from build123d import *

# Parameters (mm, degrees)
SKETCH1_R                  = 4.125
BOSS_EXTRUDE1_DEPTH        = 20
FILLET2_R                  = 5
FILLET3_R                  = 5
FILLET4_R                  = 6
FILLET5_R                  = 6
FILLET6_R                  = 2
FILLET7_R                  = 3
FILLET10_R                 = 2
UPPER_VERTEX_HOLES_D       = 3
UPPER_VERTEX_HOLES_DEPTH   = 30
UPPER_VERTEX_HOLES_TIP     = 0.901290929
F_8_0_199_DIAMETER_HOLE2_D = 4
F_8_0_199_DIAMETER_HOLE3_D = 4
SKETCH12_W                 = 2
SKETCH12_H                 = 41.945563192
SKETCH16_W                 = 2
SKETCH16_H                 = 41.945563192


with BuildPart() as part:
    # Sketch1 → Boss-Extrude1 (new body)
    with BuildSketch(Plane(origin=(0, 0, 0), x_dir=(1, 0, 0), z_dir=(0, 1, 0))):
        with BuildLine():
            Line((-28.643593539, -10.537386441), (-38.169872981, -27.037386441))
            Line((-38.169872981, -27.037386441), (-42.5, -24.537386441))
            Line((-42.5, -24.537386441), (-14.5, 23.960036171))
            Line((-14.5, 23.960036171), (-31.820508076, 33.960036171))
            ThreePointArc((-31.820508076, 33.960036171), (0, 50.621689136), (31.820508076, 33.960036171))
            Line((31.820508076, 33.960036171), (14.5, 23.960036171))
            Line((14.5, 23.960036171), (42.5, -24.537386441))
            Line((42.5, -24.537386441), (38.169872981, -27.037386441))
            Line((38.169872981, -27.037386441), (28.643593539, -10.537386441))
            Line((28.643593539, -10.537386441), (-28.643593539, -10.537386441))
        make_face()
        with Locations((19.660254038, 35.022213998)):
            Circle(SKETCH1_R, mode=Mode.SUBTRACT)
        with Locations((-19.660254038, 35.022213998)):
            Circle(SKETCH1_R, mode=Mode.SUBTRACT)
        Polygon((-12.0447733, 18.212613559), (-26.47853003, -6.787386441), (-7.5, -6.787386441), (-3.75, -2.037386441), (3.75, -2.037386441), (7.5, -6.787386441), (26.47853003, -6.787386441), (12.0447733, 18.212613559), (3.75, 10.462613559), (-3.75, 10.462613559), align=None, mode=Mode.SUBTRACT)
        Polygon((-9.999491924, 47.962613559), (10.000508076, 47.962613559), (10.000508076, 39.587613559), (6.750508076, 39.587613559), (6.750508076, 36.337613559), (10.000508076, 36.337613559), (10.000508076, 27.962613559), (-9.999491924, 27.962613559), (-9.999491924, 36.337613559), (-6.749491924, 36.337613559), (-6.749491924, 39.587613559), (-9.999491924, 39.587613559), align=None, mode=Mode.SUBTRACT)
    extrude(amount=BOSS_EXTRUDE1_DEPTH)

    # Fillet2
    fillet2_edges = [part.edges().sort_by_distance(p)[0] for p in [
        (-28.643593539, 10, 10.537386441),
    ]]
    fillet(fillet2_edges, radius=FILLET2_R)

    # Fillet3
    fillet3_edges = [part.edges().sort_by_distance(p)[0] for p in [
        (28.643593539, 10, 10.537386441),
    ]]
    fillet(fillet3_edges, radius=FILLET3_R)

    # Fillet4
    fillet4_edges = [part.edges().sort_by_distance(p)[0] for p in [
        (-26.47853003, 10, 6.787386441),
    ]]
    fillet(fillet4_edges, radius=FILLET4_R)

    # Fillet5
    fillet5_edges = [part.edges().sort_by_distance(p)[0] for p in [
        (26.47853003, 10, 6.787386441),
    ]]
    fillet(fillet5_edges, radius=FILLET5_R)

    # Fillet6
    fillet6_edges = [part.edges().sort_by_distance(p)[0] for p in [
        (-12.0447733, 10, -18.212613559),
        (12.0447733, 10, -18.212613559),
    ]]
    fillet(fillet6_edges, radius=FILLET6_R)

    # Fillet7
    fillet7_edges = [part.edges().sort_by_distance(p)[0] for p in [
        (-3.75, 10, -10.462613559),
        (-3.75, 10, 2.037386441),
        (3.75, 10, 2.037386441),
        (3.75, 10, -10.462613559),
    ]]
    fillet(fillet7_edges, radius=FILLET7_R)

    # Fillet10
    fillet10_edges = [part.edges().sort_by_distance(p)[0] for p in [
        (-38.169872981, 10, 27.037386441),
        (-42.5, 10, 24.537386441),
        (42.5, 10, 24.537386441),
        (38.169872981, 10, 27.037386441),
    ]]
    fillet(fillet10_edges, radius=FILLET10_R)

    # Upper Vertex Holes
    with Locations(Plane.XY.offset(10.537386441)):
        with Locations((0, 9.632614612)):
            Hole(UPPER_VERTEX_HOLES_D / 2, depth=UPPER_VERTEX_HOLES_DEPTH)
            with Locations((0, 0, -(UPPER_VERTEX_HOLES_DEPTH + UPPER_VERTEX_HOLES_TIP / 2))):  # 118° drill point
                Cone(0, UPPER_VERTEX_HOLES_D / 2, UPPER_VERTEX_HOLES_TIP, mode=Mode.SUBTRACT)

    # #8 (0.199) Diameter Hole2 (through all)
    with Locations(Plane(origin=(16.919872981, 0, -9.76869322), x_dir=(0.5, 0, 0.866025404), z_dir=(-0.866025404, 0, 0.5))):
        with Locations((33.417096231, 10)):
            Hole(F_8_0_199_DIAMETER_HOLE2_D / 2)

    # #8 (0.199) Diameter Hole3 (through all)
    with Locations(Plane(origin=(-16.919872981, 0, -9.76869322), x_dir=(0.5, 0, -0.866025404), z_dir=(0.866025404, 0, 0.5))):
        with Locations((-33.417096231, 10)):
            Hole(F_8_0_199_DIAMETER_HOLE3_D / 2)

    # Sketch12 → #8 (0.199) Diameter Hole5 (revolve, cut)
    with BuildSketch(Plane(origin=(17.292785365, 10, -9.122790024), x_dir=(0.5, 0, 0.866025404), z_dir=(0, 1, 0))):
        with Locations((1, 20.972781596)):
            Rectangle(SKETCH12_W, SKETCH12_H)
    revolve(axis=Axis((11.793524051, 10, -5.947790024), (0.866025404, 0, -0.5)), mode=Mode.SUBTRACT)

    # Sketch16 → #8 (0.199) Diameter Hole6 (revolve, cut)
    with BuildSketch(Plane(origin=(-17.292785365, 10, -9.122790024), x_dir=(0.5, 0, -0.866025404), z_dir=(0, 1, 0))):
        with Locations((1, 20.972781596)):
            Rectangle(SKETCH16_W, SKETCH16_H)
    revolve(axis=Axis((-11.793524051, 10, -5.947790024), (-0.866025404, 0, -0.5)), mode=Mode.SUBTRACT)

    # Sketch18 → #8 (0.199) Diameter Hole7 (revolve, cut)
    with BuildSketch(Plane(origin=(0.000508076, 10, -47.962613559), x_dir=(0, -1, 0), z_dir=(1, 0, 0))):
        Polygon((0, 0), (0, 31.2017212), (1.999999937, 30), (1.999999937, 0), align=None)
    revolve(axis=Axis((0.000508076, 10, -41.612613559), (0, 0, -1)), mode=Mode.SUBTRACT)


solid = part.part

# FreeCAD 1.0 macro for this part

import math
import FreeCAD as App
import Part
import Sketcher

V = App.Vector
Q = App.Units.Quantity


def edges_at(feature, points):
    """Names of the edges that pass closest to the given points."""
    edges = feature.Shape.Edges
    near = lambda p: min(range(len(edges)), key=lambda i: edges[i].distToShape(Part.Vertex(*p))[0])
    return sorted({f"Edge{near(p) + 1}" for p in points})


def add_polygon(sketch, points):
    """Adds a closed chain of lines whose ends are joined by coincident constraints."""
    first, n = sketch.GeometryCount, len(points)
    for a, b in zip(points, points[1:] + points[:1]):
        sketch.addGeometry(Part.LineSegment(App.Vector(*a, 0), App.Vector(*b, 0)), False)
    for i in range(n):
        sketch.addConstraint(Sketcher.Constraint("Coincident", first + i, 2, first + (i + 1) % n, 1))

doc = App.newDocument("Part")
params = doc.addObject("Spreadsheet::Sheet", "Params")
for row, (alias, value) in enumerate([
    ("sketch1_diameter", "8.25 mm"),
    ("sketch1_width", "20 mm"),
    ("sketch1_length", "5 mm"),
    ("sketch1_length2", "56 mm"),
    ("sketch1_length3", "20 mm"),
    ("pad1_length", "20 mm"),
    ("fillet_radius", "5 mm"),
    ("fillet2_radius", "5 mm"),
    ("fillet3_radius", "6 mm"),
    ("fillet4_radius", "6 mm"),
    ("fillet5_radius", "2 mm"),
    ("fillet6_radius", "3 mm"),
    ("fillet7_radius", "2 mm"),
    ("sketch2_diameter", "3 mm"),
    ("hole_diameter", "3 mm"),
    ("hole_depth", "30 mm"),
    ("sketch3_diameter", "4 mm"),
    ("hole2_diameter", "4 mm"),
    ("sketch4_diameter", "4 mm"),
    ("hole3_diameter", "4 mm"),
    ("sketch5_length", "2 mm"),
    ("groove_angle", "360 deg"),
    ("sketch6_length", "2 mm"),
    ("groove2_angle", "360 deg"),
    ("sketch7_width", "2 mm"),
    ("sketch7_height", "30 mm"),
    ("groove3_angle", "360 deg"),
], start=1):
    params.set(f"A{row}", alias)
    params.set(f"B{row}", "=" + value)
    params.setAlias(f"B{row}", alias)

body = doc.addObject("PartDesign::Body", "Body")

# Sketch on XZ plane
sketch1 = body.newObject("Sketcher::SketchObject", "Sketch")
sketch1.AttachmentSupport = (doc.getObject("XZ_Plane"), [""])
sketch1.MapMode = "FlatFace"
sketch1.addGeometry(Part.LineSegment(V(-38.2, 27, 0), V(-28.6, 10.5, 0)), False)  # 0
sketch1.addGeometry(Part.LineSegment(V(-28.6, 10.5, 0), V(28.6, 10.5, 0)), False)  # 1
sketch1.addGeometry(Part.LineSegment(V(28.6, 10.5, 0), V(38.2, 27, 0)), False)  # 2
sketch1.addGeometry(Part.LineSegment(V(38.2, 27, 0), V(42.5, 24.5, 0)), False)  # 3
sketch1.addGeometry(Part.LineSegment(V(42.5, 24.5, 0), V(14.5, -24, 0)), False)  # 4
sketch1.addGeometry(Part.LineSegment(V(14.5, -24, 0), V(31.8, -34, 0)), False)  # 5
sketch1.addGeometry(Part.ArcOfCircle(Part.Circle(V(0, -11.9, 0), V(0, 0, 1), 38.7), math.radians(-145), math.radians(-35)), False)  # 6
sketch1.addGeometry(Part.LineSegment(V(-31.8, -34, 0), V(-14.5, -24, 0)), False)  # 7
sketch1.addGeometry(Part.LineSegment(V(-14.5, -24, 0), V(-42.5, 24.5, 0)), False)  # 8
sketch1.addGeometry(Part.LineSegment(V(-42.5, 24.5, 0), V(-38.2, 27, 0)), False)  # 9
add_polygon(sketch1, [(-12, -18.2), (-3.8, -10.5), (3.8, -10.5), (12, -18.2), (26.5, 6.8), (7.5, 6.8), (3.8, 2), (-3.8, 2), (-7.5, 6.8), (-26.5, 6.8)])  # lines 10-19
sketch1.addGeometry(Part.Circle(V(19.7, -35, 0), V(0, 0, 1), 4.1), False)  # 20
add_polygon(sketch1, [(-10, -48), (10, -48), (10, -39.6), (6.8, -39.6), (6.8, -36.3), (10, -36.3), (10, -28), (-10, -28), (-10, -36.3), (-6.7, -36.3), (-6.7, -39.6), (-10, -39.6)])  # lines 21-32
sketch1.addGeometry(Part.Circle(V(-19.7, -35, 0), V(0, 0, 1), 4.1), False)  # 33
sketch1.addConstraint(Sketcher.Constraint("Coincident", 0, 2, 1, 1))
sketch1.addConstraint(Sketcher.Constraint("Coincident", 1, 2, 2, 1))
sketch1.addConstraint(Sketcher.Constraint("Coincident", 2, 2, 3, 1))
sketch1.addConstraint(Sketcher.Constraint("Coincident", 3, 2, 4, 1))
sketch1.addConstraint(Sketcher.Constraint("Coincident", 4, 2, 5, 1))
sketch1.addConstraint(Sketcher.Constraint("Coincident", 5, 2, 6, 2))
sketch1.addConstraint(Sketcher.Constraint("Coincident", 6, 1, 7, 1))
sketch1.addConstraint(Sketcher.Constraint("Coincident", 7, 2, 8, 1))
sketch1.addConstraint(Sketcher.Constraint("Coincident", 8, 2, 9, 1))
sketch1.addConstraint(Sketcher.Constraint("Coincident", 9, 2, 0, 1))
sketch1.addConstraint(Sketcher.Constraint("Horizontal", 1))
sketch1.addConstraint(Sketcher.Constraint("Horizontal", 11))
sketch1.addConstraint(Sketcher.Constraint("Horizontal", 14))
sketch1.addConstraint(Sketcher.Constraint("Horizontal", 16))
sketch1.addConstraint(Sketcher.Constraint("Horizontal", 18))
sketch1.addConstraint(Sketcher.Constraint("Horizontal", 21))
sketch1.addConstraint(Sketcher.Constraint("Vertical", 22))
sketch1.addConstraint(Sketcher.Constraint("Horizontal", 23))
sketch1.addConstraint(Sketcher.Constraint("Vertical", 24))
sketch1.addConstraint(Sketcher.Constraint("Horizontal", 25))
sketch1.addConstraint(Sketcher.Constraint("Vertical", 26))
sketch1.addConstraint(Sketcher.Constraint("Horizontal", 27))
sketch1.addConstraint(Sketcher.Constraint("Vertical", 28))
sketch1.addConstraint(Sketcher.Constraint("Horizontal", 29))
sketch1.addConstraint(Sketcher.Constraint("Vertical", 30))
sketch1.addConstraint(Sketcher.Constraint("Horizontal", 31))
sketch1.addConstraint(Sketcher.Constraint("Vertical", 32))
sketch1.addConstraint(Sketcher.Constraint("Equal", 20, 33))
sketch1.addConstraint(Sketcher.Constraint("Symmetric", 20, 3, 33, 3, -2))
sketch1.addConstraint(Sketcher.Constraint("Symmetric", 5, 2, 6, 1, -2))
sketch1.addConstraint(Sketcher.Constraint("Symmetric", 4, 2, 7, 2, -2))
sketch1.addConstraint(Sketcher.Constraint("Symmetric", 3, 2, 8, 2, -2))
sketch1.addConstraint(Sketcher.Constraint("Symmetric", 2, 2, 9, 2, -2))
sketch1.addConstraint(Sketcher.Constraint("Symmetric", 14, 2, 17, 2, -2))
sketch1.addConstraint(Sketcher.Constraint("Symmetric", 12, 2, 19, 2, -2))
sketch1.addConstraint(Sketcher.Constraint("Perpendicular", 2, 3))
sketch1.addConstraint(Sketcher.Constraint("Perpendicular", 3, 4))
sketch1.addConstraint(Sketcher.Constraint("Perpendicular", 4, 5))
sketch1.addConstraint(Sketcher.Constraint("Perpendicular", 0, 7))
sketch1.addConstraint(Sketcher.Constraint("Perpendicular", 5, 13))
sketch1.addConstraint(Sketcher.Constraint("Perpendicular", 9, 19))
sketch1.addConstraint(Sketcher.Constraint("Horizontal", 25, 2, 28, 2))
sketch1.addConstraint(Sketcher.Constraint("Horizontal", 23, 2, 30, 2))
sketch1.addConstraint(Sketcher.Constraint("Vertical", 11, 2, 15, 2))
sketch1.addConstraint(Sketcher.Constraint("Vertical", 10, 2, 16, 2))
sketch1.addConstraint(Sketcher.Constraint("Vertical", 22, 2, 25, 2))
sketch1.addConstraint(Sketcher.Constraint("Vertical", 28, 2, 31, 2))
sketch1.addConstraint(Sketcher.Constraint("Equal", 25, 29))
sketch1.addConstraint(Sketcher.Constraint("Equal", 31, 24))
sketch1.addConstraint(Sketcher.Constraint("Equal", 22, 26))
sketch1.addConstraint(Sketcher.Constraint("Equal", 10, 12))
sketch1.addConstraint(Sketcher.Constraint("Diameter", 20, 8.25))
sketch1.addConstraint(Sketcher.Constraint("DistanceX", 21, 1, 21, 2, 20.0))
sketch1.addConstraint(Sketcher.Constraint("Angle", 0, Q("-60 deg")))
sketch1.addConstraint(Sketcher.Constraint("Distance", 3, 5.0))
sketch1.addConstraint(Sketcher.Constraint("Distance", 4, 56.0))
sketch1.addConstraint(Sketcher.Constraint("Distance", 5, 20.0))
sketch1.addConstraint(Sketcher.Constraint("DistanceX", 11, 1, 11, 2, 7.5))
sketch1.addConstraint(Sketcher.Constraint("DistanceY", 1, 2, 3, 2, 14.0))
sketch1.addConstraint(Sketcher.Constraint("DistanceX", 7, 2, 4, 2, 29.0))
sketch1.addConstraint(Sketcher.Constraint("DistanceY", 10, 2, 0, 2, 21.0))
sketch1.addConstraint(Sketcher.Constraint("DistanceY", 12, 2, 13, 2, 25.0))
sketch1.addConstraint(Sketcher.Constraint("DistanceX", 17, 2, 14, 2, 15.0))
sketch1.addConstraint(Sketcher.Constraint("DistanceX", 23, 2, 23, 1, 3.25))
sketch1.addConstraint(Sketcher.Constraint("DistanceY", 11, 2, 15, 2, 12.5))
sketch1.addConstraint(Sketcher.Constraint("DistanceY", 27, 2, 10, 2, 17.5))
sketch1.addConstraint(Sketcher.Constraint("DistanceY", 22, 1, 22, 2, 8.375))
sketch1.addConstraint(Sketcher.Constraint("Radius", 6, 38.716309))
sketch1.addConstraint(Sketcher.Constraint("DistanceY", 12, 2, 11, 2, 7.75))
sketch1.addConstraint(Sketcher.Constraint("DistanceX", 21, 2, 5, 2, 21.82))
sketch1.addConstraint(Sketcher.Constraint("DistanceX", 14, 2, 14, 1, 18.97853))
sketch1.addConstraint(Sketcher.Constraint("DistanceY", 33, 3, 0, 2, 45.5596))
sketch1.addConstraint(Sketcher.Constraint("DistanceY", 6, 3, -1, 1, 11.90538))
sketch1.addConstraint(Sketcher.Constraint("DistanceX", 33, 3, 20, 3, 39.320508))
sketch1.setExpression("Constraints[73]", "Params.sketch1_diameter")
sketch1.setExpression("Constraints[74]", "Params.sketch1_width")
sketch1.setExpression("Constraints[76]", "Params.sketch1_length")
sketch1.setExpression("Constraints[77]", "Params.sketch1_length2")
sketch1.setExpression("Constraints[78]", "Params.sketch1_length3")
pad1 = body.newObject("PartDesign::Pad", "Pad")
pad1.Profile = sketch1
pad1.setExpression("Length", "Params.pad1_length")
pad1.Reversed = True
doc.recompute()

fillet = body.newObject("PartDesign::Fillet", "Fillet")
fillet.Base = (pad1, edges_at(pad1, [(-28.644, 10, 10.537)]))
fillet.setExpression("Radius", "Params.fillet_radius")
doc.recompute()

fillet2 = body.newObject("PartDesign::Fillet", "Fillet001")
fillet2.Base = (fillet, edges_at(fillet, [(28.644, 10, 10.537)]))
fillet2.setExpression("Radius", "Params.fillet2_radius")
doc.recompute()

fillet3 = body.newObject("PartDesign::Fillet", "Fillet002")
fillet3.Base = (fillet2, edges_at(fillet2, [(-26.479, 10, 6.787)]))
fillet3.setExpression("Radius", "Params.fillet3_radius")
doc.recompute()

fillet4 = body.newObject("PartDesign::Fillet", "Fillet003")
fillet4.Base = (fillet3, edges_at(fillet3, [(26.479, 10, 6.787)]))
fillet4.setExpression("Radius", "Params.fillet4_radius")
doc.recompute()

fillet5 = body.newObject("PartDesign::Fillet", "Fillet004")
fillet5.Base = (fillet4, edges_at(fillet4, [(-12.045, 10, -18.213), (12.045, 10, -18.213)]))
fillet5.setExpression("Radius", "Params.fillet5_radius")
doc.recompute()

fillet6 = body.newObject("PartDesign::Fillet", "Fillet005")
fillet6.Base = (fillet5, edges_at(fillet5, [
    (-3.75, 10, -10.463),
    (-3.75, 10, 2.037),
    (3.75, 10, 2.037),
    (3.75, 10, -10.463),
]))
fillet6.setExpression("Radius", "Params.fillet6_radius")
doc.recompute()

fillet7 = body.newObject("PartDesign::Fillet", "Fillet006")
fillet7.Base = (fillet6, edges_at(fillet6, [
    (-38.17, 10, 27.037),
    (-42.5, 10, 24.537),
    (42.5, 10, 24.537),
    (38.17, 10, 27.037),
]))
fillet7.setExpression("Radius", "Params.fillet7_radius")

# Sketch on XY plane
sketch2 = body.newObject("Sketcher::SketchObject", "Sketch001")
sketch2.AttachmentSupport = (doc.getObject("XY_Plane"), [""])
sketch2.MapMode = "FlatFace"
sketch2.AttachmentOffset = App.Placement(V(0, 0, 10.537386), App.Rotation())
sketch2.addGeometry(Part.Circle(V(0, 9.6, 0), V(0, 0, 1), 1.5), False)
sketch2.addConstraint(Sketcher.Constraint("PointOnObject", 0, 3, -2))
sketch2.addConstraint(Sketcher.Constraint("Diameter", 0, 3.0))
sketch2.addConstraint(Sketcher.Constraint("DistanceY", -1, 1, 0, 3, 9.632615))
sketch2.setExpression("Constraints[1]", "Params.sketch2_diameter")
doc.recompute()
hole = body.newObject("PartDesign::Hole", "Hole")
hole.Profile = sketch2
hole.ThreadType = "None"
hole.setExpression("Diameter", "Params.hole_diameter")
hole.DepthType = "Dimension"
hole.setExpression("Depth", "Params.hole_depth")
hole.DrillPoint = "Angled"
hole.DrillPointAngle = 118

# Sketch on an angled plane
sketch3 = body.newObject("Sketcher::SketchObject", "Sketch002")
sketch3.Placement = App.Placement(V(16.919873, 0, -9.768693), App.Rotation(V(0.5, 0, 0.866025404), V(0, 1, 0), V(-0.866025404, 0, 0.5), "ZXY"))
sketch3.addGeometry(Part.Circle(V(33.4, 10, 0), V(0, 0, 1), 2), False)
sketch3.addConstraint(Sketcher.Constraint("Diameter", 0, 4.0))
sketch3.addConstraint(Sketcher.Constraint("DistanceY", -1, 1, 0, 3, 10.0))
sketch3.addConstraint(Sketcher.Constraint("DistanceX", -1, 1, 0, 3, 33.417096))
sketch3.setExpression("Constraints[0]", "Params.sketch3_diameter")
doc.recompute()
hole2 = body.newObject("PartDesign::Hole", "Hole001")
hole2.Profile = sketch3
hole2.ThreadType = "None"
hole2.setExpression("Diameter", "Params.hole2_diameter")
hole2.DepthType = "ThroughAll"

# Sketch on an angled plane
sketch4 = body.newObject("Sketcher::SketchObject", "Sketch003")
sketch4.Placement = App.Placement(V(-16.919873, 0, -9.768693), App.Rotation(V(0.5, 0, -0.866025404), V(0, 1, 0), V(0.866025404, 0, 0.5), "ZXY"))
sketch4.addGeometry(Part.Circle(V(-33.4, 10, 0), V(0, 0, 1), 2), False)
sketch4.addConstraint(Sketcher.Constraint("Diameter", 0, 4.0))
sketch4.addConstraint(Sketcher.Constraint("DistanceY", -1, 1, 0, 3, 10.0))
sketch4.addConstraint(Sketcher.Constraint("DistanceX", 0, 3, -1, 1, 33.417096))
sketch4.setExpression("Constraints[0]", "Params.sketch4_diameter")
doc.recompute()
hole3 = body.newObject("PartDesign::Hole", "Hole002")
hole3.Profile = sketch4
hole3.ThreadType = "None"
hole3.setExpression("Diameter", "Params.hole3_diameter")
hole3.DepthType = "ThroughAll"

# Sketch on XZ plane
sketch5 = body.newObject("Sketcher::SketchObject", "Sketch004")
sketch5.AttachmentSupport = (doc.getObject("XZ_Plane"), [""])
sketch5.MapMode = "FlatFace"
sketch5.AttachmentOffset = App.Placement(V(0, 0, -10), App.Rotation())
add_polygon(sketch5, [(53.6, -30.1), (17.3, -9.1), (18.3, -7.4), (54.6, -28.4)])  # lines 0-3
sketch5.addGeometry(Part.LineSegment(V(17.3, -9.1, 0), V(53.6, -30.1, 0)), True)  # axis
sketch5.addConstraint(Sketcher.Constraint("Coincident", 4, 1, 0, 2))
sketch5.addConstraint(Sketcher.Constraint("Coincident", 4, 2, 3, 2))
sketch5.addConstraint(Sketcher.Constraint("Perpendicular", 0, 1))
sketch5.addConstraint(Sketcher.Constraint("Perpendicular", 1, 2))
sketch5.addConstraint(Sketcher.Constraint("Perpendicular", 2, 3))
sketch5.addConstraint(Sketcher.Constraint("Angle", 0, Q("150 deg")))
sketch5.addConstraint(Sketcher.Constraint("Distance", 1, 2.0))
sketch5.addConstraint(Sketcher.Constraint("DistanceY", 0, 2, -1, 1, 9.12279))
sketch5.addConstraint(Sketcher.Constraint("DistanceX", -1, 1, 2, 2, 54.618709))
sketch5.addConstraint(Sketcher.Constraint("DistanceY", 2, 2, -1, 1, 28.363521))
sketch5.setExpression("Constraints[10]", "Params.sketch5_length")
groove = body.newObject("PartDesign::Groove", "Groove")
groove.Profile = sketch5
groove.ReferenceAxis = (sketch5, ["Axis0"])
groove.setExpression("Angle", "Params.groove_angle")

# Sketch on XZ plane
sketch6 = body.newObject("Sketcher::SketchObject", "Sketch005")
sketch6.AttachmentSupport = (doc.getObject("XZ_Plane"), [""])
sketch6.MapMode = "FlatFace"
sketch6.AttachmentOffset = App.Placement(V(0, 0, -10), App.Rotation())
add_polygon(sketch6, [(-53.6, -30.1), (-17.3, -9.1), (-16.3, -10.9), (-52.6, -31.8)])  # lines 0-3
sketch6.addGeometry(Part.LineSegment(V(-17.3, -9.1, 0), V(-53.6, -30.1, 0)), True)  # axis
sketch6.addConstraint(Sketcher.Constraint("Coincident", 4, 1, 0, 2))
sketch6.addConstraint(Sketcher.Constraint("Coincident", 4, 2, 3, 2))
sketch6.addConstraint(Sketcher.Constraint("Perpendicular", 0, 1))
sketch6.addConstraint(Sketcher.Constraint("Perpendicular", 1, 2))
sketch6.addConstraint(Sketcher.Constraint("Perpendicular", 2, 3))
sketch6.addConstraint(Sketcher.Constraint("Angle", 0, Q("30 deg")))
sketch6.addConstraint(Sketcher.Constraint("Distance", 1, 2.0))
sketch6.addConstraint(Sketcher.Constraint("DistanceY", 0, 2, -1, 1, 9.12279))
sketch6.addConstraint(Sketcher.Constraint("DistanceX", 2, 2, -1, 1, 52.618709))
sketch6.addConstraint(Sketcher.Constraint("DistanceY", 3, 2, -1, 1, 30.095572))
sketch6.setExpression("Constraints[10]", "Params.sketch6_length")
groove2 = body.newObject("PartDesign::Groove", "Groove001")
groove2.Profile = sketch6
groove2.ReferenceAxis = (sketch6, ["Axis0"])
groove2.setExpression("Angle", "Params.groove2_angle")

# Sketch on YZ plane
sketch7 = body.newObject("Sketcher::SketchObject", "Sketch006")
sketch7.AttachmentSupport = (doc.getObject("YZ_Plane"), [""])
sketch7.MapMode = "FlatFace"
sketch7.AttachmentOffset = App.Placement(V(0, 0, 0.000508), App.Rotation())
add_polygon(sketch7, [(10, -79.2), (10, -48), (8, -48), (8, -78)])  # lines 0-3
sketch7.addGeometry(Part.LineSegment(V(10, -48, 0), V(10, -79.2, 0)), True)  # axis
sketch7.addConstraint(Sketcher.Constraint("Vertical", 0))
sketch7.addConstraint(Sketcher.Constraint("Horizontal", 1))
sketch7.addConstraint(Sketcher.Constraint("Vertical", 2))
sketch7.addConstraint(Sketcher.Constraint("Vertical", 4))
sketch7.addConstraint(Sketcher.Constraint("Coincident", 4, 1, 0, 2))
sketch7.addConstraint(Sketcher.Constraint("Equal", 0, 4))
sketch7.addConstraint(Sketcher.Constraint("DistanceX", 1, 2, 1, 1, 2.0))
sketch7.addConstraint(Sketcher.Constraint("DistanceY", 2, 2, 2, 1, 30.0))
sketch7.addConstraint(Sketcher.Constraint("Angle", 3, Q("-31 deg")))
sketch7.addConstraint(Sketcher.Constraint("DistanceX", -1, 1, 0, 2, 10.0))
sketch7.addConstraint(Sketcher.Constraint("DistanceY", 0, 2, -1, 1, 47.962614))
sketch7.setExpression("Constraints[10]", "Params.sketch7_width")
sketch7.setExpression("Constraints[11]", "Params.sketch7_height")
groove3 = body.newObject("PartDesign::Groove", "Groove002")
groove3.Profile = sketch7
groove3.ReferenceAxis = (sketch7, ["Axis0"])
groove3.setExpression("Angle", "Params.groove3_angle")

doc.recompute()
